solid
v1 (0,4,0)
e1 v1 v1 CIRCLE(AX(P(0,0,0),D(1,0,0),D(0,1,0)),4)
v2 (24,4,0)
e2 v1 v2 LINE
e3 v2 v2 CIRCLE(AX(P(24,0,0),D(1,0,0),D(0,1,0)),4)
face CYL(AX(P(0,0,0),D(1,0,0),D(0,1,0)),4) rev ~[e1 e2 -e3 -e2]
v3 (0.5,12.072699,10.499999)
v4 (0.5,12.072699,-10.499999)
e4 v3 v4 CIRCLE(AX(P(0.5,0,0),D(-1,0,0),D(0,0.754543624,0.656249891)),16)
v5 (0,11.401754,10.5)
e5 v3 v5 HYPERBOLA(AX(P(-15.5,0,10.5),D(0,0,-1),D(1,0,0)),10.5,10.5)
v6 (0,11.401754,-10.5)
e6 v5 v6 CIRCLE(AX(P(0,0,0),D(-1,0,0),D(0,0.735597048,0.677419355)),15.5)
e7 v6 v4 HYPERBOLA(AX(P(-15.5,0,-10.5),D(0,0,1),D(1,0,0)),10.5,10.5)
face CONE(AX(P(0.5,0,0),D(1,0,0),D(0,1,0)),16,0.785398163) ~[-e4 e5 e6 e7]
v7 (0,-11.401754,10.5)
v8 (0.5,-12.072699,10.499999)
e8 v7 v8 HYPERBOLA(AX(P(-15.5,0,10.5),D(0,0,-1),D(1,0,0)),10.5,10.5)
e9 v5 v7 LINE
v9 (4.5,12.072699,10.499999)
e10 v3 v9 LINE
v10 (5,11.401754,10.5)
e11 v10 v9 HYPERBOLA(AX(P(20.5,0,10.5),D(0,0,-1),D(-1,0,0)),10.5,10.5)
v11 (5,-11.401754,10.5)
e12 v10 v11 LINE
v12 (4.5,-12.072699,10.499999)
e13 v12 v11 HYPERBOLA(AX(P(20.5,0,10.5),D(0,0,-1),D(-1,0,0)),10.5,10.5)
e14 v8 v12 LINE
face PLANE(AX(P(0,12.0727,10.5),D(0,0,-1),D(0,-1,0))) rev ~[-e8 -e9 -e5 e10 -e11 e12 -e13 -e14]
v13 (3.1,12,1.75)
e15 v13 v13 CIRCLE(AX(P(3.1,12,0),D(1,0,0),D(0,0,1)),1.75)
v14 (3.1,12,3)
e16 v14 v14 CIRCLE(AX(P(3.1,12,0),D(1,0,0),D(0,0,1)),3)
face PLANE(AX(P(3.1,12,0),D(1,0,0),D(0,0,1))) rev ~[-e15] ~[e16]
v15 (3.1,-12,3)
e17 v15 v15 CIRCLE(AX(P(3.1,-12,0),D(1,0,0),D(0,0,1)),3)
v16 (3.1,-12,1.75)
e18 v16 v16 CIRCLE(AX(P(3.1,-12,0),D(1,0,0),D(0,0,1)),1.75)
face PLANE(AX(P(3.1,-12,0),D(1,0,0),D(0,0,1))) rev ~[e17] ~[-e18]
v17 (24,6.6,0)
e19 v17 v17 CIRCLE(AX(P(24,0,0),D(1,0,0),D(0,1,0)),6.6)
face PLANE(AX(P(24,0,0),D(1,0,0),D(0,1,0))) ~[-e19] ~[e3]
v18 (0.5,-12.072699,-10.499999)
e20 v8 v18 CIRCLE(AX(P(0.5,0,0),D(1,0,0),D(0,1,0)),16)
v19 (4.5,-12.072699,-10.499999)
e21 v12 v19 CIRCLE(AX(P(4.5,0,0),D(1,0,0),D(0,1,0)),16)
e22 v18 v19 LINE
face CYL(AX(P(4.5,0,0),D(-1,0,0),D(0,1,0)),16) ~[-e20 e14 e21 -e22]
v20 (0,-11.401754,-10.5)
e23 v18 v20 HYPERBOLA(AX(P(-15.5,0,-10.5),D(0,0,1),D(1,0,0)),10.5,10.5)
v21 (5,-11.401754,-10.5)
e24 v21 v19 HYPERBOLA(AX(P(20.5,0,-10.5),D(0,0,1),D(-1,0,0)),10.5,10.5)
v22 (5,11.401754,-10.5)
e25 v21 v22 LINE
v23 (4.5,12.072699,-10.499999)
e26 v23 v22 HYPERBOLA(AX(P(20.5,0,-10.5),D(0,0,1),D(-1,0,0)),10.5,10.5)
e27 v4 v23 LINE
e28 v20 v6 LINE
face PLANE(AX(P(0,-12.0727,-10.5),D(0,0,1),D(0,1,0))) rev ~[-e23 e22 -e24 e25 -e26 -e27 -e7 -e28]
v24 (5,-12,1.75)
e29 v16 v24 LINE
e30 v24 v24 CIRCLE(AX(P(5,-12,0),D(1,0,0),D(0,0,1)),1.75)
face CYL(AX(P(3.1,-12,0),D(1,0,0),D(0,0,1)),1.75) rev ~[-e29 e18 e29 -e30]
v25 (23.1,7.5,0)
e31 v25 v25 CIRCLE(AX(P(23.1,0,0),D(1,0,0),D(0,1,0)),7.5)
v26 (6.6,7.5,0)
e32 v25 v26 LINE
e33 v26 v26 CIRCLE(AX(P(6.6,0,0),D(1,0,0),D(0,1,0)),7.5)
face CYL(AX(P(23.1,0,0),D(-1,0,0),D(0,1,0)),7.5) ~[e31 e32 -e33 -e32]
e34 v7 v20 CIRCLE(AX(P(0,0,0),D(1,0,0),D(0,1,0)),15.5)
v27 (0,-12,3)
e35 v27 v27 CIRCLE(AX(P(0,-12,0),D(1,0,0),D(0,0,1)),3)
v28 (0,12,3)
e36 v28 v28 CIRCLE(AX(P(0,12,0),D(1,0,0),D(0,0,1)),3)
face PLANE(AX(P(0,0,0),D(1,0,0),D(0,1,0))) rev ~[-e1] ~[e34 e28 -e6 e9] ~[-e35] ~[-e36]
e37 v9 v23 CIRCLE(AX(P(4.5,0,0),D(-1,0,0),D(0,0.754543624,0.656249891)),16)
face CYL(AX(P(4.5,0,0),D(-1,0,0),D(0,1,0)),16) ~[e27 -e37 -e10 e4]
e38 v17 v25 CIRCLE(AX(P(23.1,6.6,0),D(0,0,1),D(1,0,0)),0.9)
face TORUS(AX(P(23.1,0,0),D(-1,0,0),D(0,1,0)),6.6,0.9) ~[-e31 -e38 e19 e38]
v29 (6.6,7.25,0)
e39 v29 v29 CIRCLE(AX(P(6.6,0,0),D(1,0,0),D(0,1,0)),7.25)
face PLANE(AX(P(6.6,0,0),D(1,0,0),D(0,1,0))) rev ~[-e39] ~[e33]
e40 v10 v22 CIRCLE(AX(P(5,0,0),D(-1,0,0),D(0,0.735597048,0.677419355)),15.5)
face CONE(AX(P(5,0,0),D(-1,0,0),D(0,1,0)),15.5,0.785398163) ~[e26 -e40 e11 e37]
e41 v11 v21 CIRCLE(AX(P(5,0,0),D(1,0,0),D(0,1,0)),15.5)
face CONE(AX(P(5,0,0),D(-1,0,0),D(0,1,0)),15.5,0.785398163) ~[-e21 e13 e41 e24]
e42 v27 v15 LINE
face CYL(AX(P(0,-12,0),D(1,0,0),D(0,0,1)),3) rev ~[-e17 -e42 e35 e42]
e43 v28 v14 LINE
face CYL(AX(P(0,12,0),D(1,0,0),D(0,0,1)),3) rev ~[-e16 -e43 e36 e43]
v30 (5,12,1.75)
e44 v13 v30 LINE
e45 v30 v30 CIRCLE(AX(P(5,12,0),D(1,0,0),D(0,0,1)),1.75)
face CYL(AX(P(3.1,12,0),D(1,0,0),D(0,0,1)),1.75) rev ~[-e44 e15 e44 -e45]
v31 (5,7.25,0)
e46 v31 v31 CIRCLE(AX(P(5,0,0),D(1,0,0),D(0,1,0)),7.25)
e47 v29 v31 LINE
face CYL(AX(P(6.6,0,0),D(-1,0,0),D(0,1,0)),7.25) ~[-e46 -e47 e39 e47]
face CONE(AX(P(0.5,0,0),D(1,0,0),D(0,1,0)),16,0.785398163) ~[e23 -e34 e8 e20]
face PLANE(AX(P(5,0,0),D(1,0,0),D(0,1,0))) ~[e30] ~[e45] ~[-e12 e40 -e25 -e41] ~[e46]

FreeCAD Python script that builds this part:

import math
import FreeCAD as App
import Part
import Sketcher

V = App.Vector
Q = App.Units.Quantity


def add_polygon(sketch, points):
    """Adds a closed chain of lines whose ends are joined by coincident constraints."""
    first, n = sketch.GeometryCount, len(points)
    for a, b in zip(points, points[1:] + points[:1]):
        sketch.addGeometry(Part.LineSegment(App.Vector(*a, 0), App.Vector(*b, 0)), False)
    for i in range(n):
        sketch.addConstraint(Sketcher.Constraint("Coincident", first + i, 2, first + (i + 1) % n, 1))

doc = App.newDocument("Part")
params = doc.addObject("Spreadsheet::Sheet", "Params")
for row, (alias, value) in enumerate([
    ("sketch1_radius", "0.9 mm"),
    ("sketch1_width", "24 mm"),
    ("sketch1_width2", "4 mm"),
    ("sketch1_width3", "16.5 mm"),
    ("sketch1_width4", "1.6 mm"),
    ("revolution_angle", "360 deg"),
    ("sketch2_radius", "16 mm"),
    ("sketch2_width", "64 mm"),
    ("pocket1_length", "5 mm"),
    ("sketch3_diameter", "3.5 mm"),
    ("hole_diameter", "3.5 mm"),
    ("hole_depth", "5 mm"),
    ("hole_cbore_diameter", "6 mm"),
    ("hole_cbore_depth", "3.1 mm"),
    ("sketch4_diameter", "3.5 mm"),
    ("hole2_diameter", "3.5 mm"),
    ("hole2_depth", "5 mm"),
    ("hole2_cbore_diameter", "6 mm"),
    ("hole2_cbore_depth", "3.1 mm"),
], start=1):
    params.set(f"A{row}", alias)
    params.set(f"B{row}", "=" + value)
    params.setAlias(f"B{row}", alias)

body = doc.addObject("PartDesign::Body", "Body")

sketch1 = doc.addObject("Sketcher::SketchObject", "Sketch")
body.addObject(sketch1)
sketch1.AttachmentSupport = (doc.XY_Plane, [""])
sketch1.MapMode = "FlatFace"
sketch1.addGeometry([
    Part.LineSegment(V(0, 15.5, 0), V(0, 4, 0)),
    Part.LineSegment(V(0, 4, 0), V(24, 4, 0)),
    Part.LineSegment(V(24, 4, 0), V(24, 6.6, 0)),
    Part.ArcOfCircle(Part.Circle(V(23.1, 6.6, 0), V(0, 0, 1), 0.9), math.radians(0), math.radians(90)),
    Part.LineSegment(V(23.1, 7.5, 0), V(6.6, 7.5, 0)),
    Part.LineSegment(V(6.6, 7.5, 0), V(6.6, 7.25, 0)),
    Part.LineSegment(V(6.6, 7.25, 0), V(5, 7.25, 0)),
    Part.LineSegment(V(5, 7.25, 0), V(5, 15.5, 0)),
    Part.LineSegment(V(5, 15.5, 0), V(4.5, 16, 0)),
    Part.LineSegment(V(4.5, 16, 0), V(0.5, 16, 0)),
    Part.LineSegment(V(0.5, 16, 0), V(0, 15.5, 0)),
], False)
sketch1.addConstraint([
    Sketcher.Constraint("Coincident", 0, 2, 1, 1),
    Sketcher.Constraint("Coincident", 1, 2, 2, 1),
    Sketcher.Constraint("Tangent", 2, 2, 3, 1),
    Sketcher.Constraint("Tangent", 3, 2, 4, 1),
    Sketcher.Constraint("Coincident", 4, 2, 5, 1),
    Sketcher.Constraint("Coincident", 5, 2, 6, 1),
    Sketcher.Constraint("Coincident", 6, 2, 7, 1),
    Sketcher.Constraint("Coincident", 7, 2, 8, 1),
    Sketcher.Constraint("Coincident", 8, 2, 9, 1),
    Sketcher.Constraint("Coincident", 9, 2, 10, 1),
    Sketcher.Constraint("Coincident", 10, 2, 0, 1),
    Sketcher.Constraint("Vertical", 0),
    Sketcher.Constraint("Horizontal", 1),
    Sketcher.Constraint("Vertical", 2),
    Sketcher.Constraint("Horizontal", 4),
    Sketcher.Constraint("Vertical", 5),
    Sketcher.Constraint("Horizontal", 6),
    Sketcher.Constraint("Vertical", 7),
    Sketcher.Constraint("Horizontal", 9),
    Sketcher.Constraint("PointOnObject", 0, 2, -2),
    Sketcher.Constraint("Perpendicular", 8, 10),
    Sketcher.Constraint("Horizontal", 7, 2, 10, 2),
    Sketcher.Constraint("Equal", 8, 10),
    Sketcher.Constraint("Radius", 3, Q("0.9 mm")),
    Sketcher.Constraint("DistanceX", 1, 1, 1, 2, Q("24 mm")),
    Sketcher.Constraint("DistanceX", 9, 2, 9, 1, Q("4 mm")),
    Sketcher.Constraint("DistanceX", 4, 2, 4, 1, Q("16.5 mm")),
    Sketcher.Constraint("DistanceX", 6, 2, 6, 1, Q("1.6 mm")),
    Sketcher.Constraint("DistanceY", 0, 2, 0, 1, Q("11.5 mm")),
    Sketcher.Constraint("DistanceY", 2, 1, 2, 2, Q("2.6 mm")),
    Sketcher.Constraint("DistanceY", -1, 1, 0, 2, Q("4 mm")),
    Sketcher.Constraint("DistanceY", 5, 2, 5, 1, Q("0.25 mm")),
])
sketch1.setExpression("Constraints[23]", "Params.sketch1_radius")
sketch1.setExpression("Constraints[24]", "Params.sketch1_width")
sketch1.setExpression("Constraints[25]", "Params.sketch1_width2")
sketch1.setExpression("Constraints[26]", "Params.sketch1_width3")
sketch1.setExpression("Constraints[27]", "Params.sketch1_width4")
revolution = doc.addObject("PartDesign::Revolution", "Revolution")
body.addObject(revolution)
revolution.Profile = sketch1
revolution.ReferenceAxis = (sketch1, ["H_Axis"])
revolution.setExpression("Angle", "Params.revolution_angle")

sketch2 = doc.addObject("Sketcher::SketchObject", "Sketch001")
body.addObject(sketch2)
sketch2.AttachmentSupport = (doc.YZ_Plane, [""])
sketch2.MapMode = "FlatFace"
add_polygon(sketch2, [(32, 32), (-32, 32), (-32, -32), (32, -32)])
sketch2.addGeometry(Part.LineSegment(V(-12, 10, 0), V(12, 10, 0)), False)
sketch2.addGeometry(Part.ArcOfCircle(Part.Circle(V(0, 0, 0), V(0, 0, 1), 16), math.radians(-41), math.radians(41)), False)
sketch2.addGeometry(Part.LineSegment(V(12, -10, 0), V(-12, -10, 0)), False)
sketch2.addGeometry(Part.ArcOfCircle(Part.Circle(V(0, 0, 0), V(0, 0, 1), 16), math.radians(139), math.radians(221)), False)
sketch2.addConstraint([
    Sketcher.Constraint("Coincident", 4, 2, 5, 2),
    Sketcher.Constraint("Coincident", 5, 1, 6, 1),
    Sketcher.Constraint("Coincident", 6, 2, 7, 2),
    Sketcher.Constraint("Coincident", 7, 1, 4, 1),
    Sketcher.Constraint("Horizontal", 0),
    Sketcher.Constraint("Vertical", 1),
    Sketcher.Constraint("Horizontal", 2),
    Sketcher.Constraint("Vertical", 3),
    Sketcher.Constraint("Horizontal", 4),
    Sketcher.Constraint("Horizontal", 6),
    Sketcher.Constraint("Coincident", 5, 3, -1, 1),
    Sketcher.Constraint("Coincident", 7, 3, -1, 1),
    Sketcher.Constraint("Equal", 5, 7),
    Sketcher.Constraint("Symmetric", 0, 2, 2, 2, -1, 1),
    Sketcher.Constraint("Vertical", 4, 2, 5, 1),
    Sketcher.Constraint("Equal", 2, 1),
    Sketcher.Constraint("Radius", 5, Q("16 mm")),
    Sketcher.Constraint("DistanceX", 0, 2, 0, 1, Q("64 mm")),
    Sketcher.Constraint("DistanceY", 5, 1, 4, 2, Q("21 mm")),
])
sketch2.setExpression("Constraints[20]", "Params.sketch2_radius")
sketch2.setExpression("Constraints[21]", "Params.sketch2_width")
pocket1 = doc.addObject("PartDesign::Pocket", "Pocket")
body.addObject(pocket1)
pocket1.Profile = sketch2
pocket1.setExpression("Length", "Params.pocket1_length")
pocket1.Reversed = True

sketch3 = doc.addObject("Sketcher::SketchObject", "Sketch002")
body.addObject(sketch3)
sketch3.AttachmentSupport = (doc.YZ_Plane, [""])
sketch3.MapMode = "FlatFace"
sketch3.addGeometry(Part.Circle(V(12, 0, 0), V(0, 0, 1), 1.8), False)
sketch3.addConstraint([
    Sketcher.Constraint("PointOnObject", 0, 3, -1),
    Sketcher.Constraint("Diameter", 0, Q("3.5 mm")),
    Sketcher.Constraint("DistanceX", -1, 1, 0, 3, Q("12 mm")),
])
sketch3.setExpression("Constraints[1]", "Params.sketch3_diameter")
doc.recompute()
hole = doc.addObject("PartDesign::Hole", "Hole")
body.addObject(hole)
hole.Profile = sketch3
hole.ThreadType = "None"
hole.setExpression("Diameter", "Params.hole_diameter")
hole.DepthType = "Dimension"
hole.setExpression("Depth", "Params.hole_depth")
hole.DrillPoint = "Flat"
hole.HoleCutType = "Counterbore"
hole.setExpression("HoleCutDiameter", "Params.hole_cbore_diameter")
hole.setExpression("HoleCutDepth", "Params.hole_cbore_depth")
hole.Reversed = True

sketch4 = doc.addObject("Sketcher::SketchObject", "Sketch003")
body.addObject(sketch4)
sketch4.AttachmentSupport = (doc.YZ_Plane, [""])
sketch4.MapMode = "FlatFace"
sketch4.addGeometry(Part.Circle(V(-12, 0, 0), V(0, 0, 1), 1.8), False)
sketch4.addConstraint([
    Sketcher.Constraint("PointOnObject", 0, 3, -1),
    Sketcher.Constraint("Diameter", 0, Q("3.5 mm")),
    Sketcher.Constraint("DistanceX", 0, 3, -1, 1, Q("12 mm")),
])
sketch4.setExpression("Constraints[1]", "Params.sketch4_diameter")
doc.recompute()
hole2 = doc.addObject("PartDesign::Hole", "Hole001")
body.addObject(hole2)
hole2.Profile = sketch4
hole2.ThreadType = "None"
hole2.setExpression("Diameter", "Params.hole2_diameter")
hole2.DepthType = "Dimension"
hole2.setExpression("Depth", "Params.hole2_depth")
hole2.DrillPoint = "Flat"
hole2.HoleCutType = "Counterbore"
hole2.setExpression("HoleCutDiameter", "Params.hole2_cbore_diameter")
hole2.setExpression("HoleCutDepth", "Params.hole2_cbore_depth")
hole2.Reversed = True

doc.recompute()
